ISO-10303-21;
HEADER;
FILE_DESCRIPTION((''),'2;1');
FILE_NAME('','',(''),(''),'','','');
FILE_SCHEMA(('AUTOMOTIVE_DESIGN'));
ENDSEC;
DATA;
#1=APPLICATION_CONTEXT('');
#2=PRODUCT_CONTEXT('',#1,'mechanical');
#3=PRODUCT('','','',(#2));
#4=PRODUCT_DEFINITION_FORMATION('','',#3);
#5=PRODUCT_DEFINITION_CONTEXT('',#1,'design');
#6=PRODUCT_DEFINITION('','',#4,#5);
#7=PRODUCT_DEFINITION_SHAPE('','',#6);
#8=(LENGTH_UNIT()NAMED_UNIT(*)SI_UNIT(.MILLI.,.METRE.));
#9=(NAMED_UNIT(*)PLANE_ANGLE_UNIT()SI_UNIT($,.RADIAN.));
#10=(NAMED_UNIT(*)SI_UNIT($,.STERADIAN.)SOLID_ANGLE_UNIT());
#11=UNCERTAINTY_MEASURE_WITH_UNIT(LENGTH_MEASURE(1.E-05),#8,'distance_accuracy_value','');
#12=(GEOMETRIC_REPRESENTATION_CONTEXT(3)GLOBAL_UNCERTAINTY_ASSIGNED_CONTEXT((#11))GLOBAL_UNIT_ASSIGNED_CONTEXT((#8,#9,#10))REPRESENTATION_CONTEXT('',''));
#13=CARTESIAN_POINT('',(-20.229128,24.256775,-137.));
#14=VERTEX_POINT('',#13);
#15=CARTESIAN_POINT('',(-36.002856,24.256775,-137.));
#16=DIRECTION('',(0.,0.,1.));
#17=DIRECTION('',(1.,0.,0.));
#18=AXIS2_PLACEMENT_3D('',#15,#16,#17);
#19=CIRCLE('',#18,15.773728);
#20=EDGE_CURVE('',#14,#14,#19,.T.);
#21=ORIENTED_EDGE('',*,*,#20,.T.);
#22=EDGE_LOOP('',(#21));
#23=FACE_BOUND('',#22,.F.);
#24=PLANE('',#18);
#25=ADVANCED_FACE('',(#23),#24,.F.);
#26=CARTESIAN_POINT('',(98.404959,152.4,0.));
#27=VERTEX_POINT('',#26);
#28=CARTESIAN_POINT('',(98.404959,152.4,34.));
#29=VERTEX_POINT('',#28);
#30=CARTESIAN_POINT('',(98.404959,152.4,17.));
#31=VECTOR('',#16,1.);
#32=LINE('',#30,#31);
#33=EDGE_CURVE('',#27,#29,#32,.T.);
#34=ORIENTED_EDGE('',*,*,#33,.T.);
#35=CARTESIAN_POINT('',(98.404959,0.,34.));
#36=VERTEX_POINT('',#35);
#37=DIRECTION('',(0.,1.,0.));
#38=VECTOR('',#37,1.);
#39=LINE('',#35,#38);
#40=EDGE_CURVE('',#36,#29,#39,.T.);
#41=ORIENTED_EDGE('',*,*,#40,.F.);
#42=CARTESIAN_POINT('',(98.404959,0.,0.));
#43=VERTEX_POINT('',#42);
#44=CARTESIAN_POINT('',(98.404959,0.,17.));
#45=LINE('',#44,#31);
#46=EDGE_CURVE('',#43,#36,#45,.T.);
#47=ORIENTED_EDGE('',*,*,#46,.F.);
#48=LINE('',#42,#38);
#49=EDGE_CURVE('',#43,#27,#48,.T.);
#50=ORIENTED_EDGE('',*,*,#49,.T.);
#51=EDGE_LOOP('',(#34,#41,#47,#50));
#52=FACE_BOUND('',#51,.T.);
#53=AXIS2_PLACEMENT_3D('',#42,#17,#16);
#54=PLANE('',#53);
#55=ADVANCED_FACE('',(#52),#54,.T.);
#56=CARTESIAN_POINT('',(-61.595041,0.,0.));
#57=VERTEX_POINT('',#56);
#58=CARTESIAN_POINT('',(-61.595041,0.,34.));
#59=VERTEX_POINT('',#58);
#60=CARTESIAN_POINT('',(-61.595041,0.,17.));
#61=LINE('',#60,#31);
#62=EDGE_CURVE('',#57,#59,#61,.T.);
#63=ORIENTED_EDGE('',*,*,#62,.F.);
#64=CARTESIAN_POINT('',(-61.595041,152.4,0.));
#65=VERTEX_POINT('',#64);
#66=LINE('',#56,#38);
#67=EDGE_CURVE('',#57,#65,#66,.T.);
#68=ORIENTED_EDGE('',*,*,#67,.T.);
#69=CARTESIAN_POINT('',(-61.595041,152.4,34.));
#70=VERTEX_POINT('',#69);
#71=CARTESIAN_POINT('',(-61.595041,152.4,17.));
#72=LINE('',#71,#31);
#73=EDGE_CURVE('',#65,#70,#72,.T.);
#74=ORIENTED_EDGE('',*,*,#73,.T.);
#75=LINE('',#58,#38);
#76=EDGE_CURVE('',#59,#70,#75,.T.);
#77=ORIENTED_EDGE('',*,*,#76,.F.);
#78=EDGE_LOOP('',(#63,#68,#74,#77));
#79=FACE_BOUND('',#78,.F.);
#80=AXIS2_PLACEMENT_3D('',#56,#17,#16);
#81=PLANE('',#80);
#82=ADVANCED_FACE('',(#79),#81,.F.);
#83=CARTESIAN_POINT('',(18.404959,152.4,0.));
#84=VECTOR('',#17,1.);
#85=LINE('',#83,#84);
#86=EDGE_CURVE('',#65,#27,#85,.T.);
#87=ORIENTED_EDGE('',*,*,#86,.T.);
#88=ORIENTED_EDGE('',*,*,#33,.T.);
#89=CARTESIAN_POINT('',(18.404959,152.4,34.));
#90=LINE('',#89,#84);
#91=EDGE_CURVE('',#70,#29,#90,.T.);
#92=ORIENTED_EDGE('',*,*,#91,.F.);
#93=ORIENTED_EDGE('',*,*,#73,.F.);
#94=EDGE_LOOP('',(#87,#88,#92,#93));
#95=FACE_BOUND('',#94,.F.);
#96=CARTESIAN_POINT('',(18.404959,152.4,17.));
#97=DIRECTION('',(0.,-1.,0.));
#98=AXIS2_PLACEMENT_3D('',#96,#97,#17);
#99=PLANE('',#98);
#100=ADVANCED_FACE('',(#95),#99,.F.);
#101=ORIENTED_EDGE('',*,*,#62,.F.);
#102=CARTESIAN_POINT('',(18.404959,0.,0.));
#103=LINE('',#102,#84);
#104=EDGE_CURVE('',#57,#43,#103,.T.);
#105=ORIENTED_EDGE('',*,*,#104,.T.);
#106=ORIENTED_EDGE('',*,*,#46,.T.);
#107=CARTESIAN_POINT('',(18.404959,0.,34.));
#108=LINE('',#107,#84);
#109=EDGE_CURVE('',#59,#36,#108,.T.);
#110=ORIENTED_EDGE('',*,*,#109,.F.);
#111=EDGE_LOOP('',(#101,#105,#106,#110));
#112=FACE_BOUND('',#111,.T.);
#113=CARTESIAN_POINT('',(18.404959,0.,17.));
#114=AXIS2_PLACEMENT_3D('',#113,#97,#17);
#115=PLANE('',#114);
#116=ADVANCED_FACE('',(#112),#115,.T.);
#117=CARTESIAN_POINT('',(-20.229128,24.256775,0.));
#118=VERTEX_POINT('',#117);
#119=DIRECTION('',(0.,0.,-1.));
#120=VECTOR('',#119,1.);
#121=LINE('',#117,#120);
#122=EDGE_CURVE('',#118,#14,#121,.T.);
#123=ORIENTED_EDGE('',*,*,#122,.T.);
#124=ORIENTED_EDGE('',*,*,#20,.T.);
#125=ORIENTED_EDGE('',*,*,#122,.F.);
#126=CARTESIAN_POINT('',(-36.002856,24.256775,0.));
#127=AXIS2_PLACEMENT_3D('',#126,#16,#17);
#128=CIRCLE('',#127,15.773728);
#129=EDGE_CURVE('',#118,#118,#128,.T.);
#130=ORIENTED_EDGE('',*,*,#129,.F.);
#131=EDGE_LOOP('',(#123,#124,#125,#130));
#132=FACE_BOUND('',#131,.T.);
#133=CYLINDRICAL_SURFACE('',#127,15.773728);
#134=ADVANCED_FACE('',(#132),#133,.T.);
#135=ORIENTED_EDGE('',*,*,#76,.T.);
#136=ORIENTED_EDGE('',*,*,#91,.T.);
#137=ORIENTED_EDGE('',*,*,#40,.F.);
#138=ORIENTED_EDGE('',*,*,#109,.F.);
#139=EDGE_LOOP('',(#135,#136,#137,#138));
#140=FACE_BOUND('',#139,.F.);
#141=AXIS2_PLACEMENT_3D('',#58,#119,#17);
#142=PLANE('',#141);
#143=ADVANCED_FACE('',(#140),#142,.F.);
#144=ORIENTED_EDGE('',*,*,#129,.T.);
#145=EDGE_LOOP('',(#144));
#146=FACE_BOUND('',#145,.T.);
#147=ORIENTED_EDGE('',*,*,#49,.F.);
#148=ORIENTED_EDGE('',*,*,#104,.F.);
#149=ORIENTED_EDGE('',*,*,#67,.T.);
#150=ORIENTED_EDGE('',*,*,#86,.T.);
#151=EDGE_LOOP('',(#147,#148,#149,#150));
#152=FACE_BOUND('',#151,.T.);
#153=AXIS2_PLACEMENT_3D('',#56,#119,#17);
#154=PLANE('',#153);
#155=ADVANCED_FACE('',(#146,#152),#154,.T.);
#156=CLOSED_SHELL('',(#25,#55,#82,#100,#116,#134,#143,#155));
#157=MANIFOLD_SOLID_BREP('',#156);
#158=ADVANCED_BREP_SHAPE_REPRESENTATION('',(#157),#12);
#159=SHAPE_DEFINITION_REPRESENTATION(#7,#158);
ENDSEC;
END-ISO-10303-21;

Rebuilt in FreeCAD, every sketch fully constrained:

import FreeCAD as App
import Part
import Sketcher

V = App.Vector
Q = App.Units.Quantity


def add_polygon(sketch, points):
    """Adds a closed chain of lines whose ends are joined by coincident constraints."""
    first, n = sketch.GeometryCount, len(points)
    for a, b in zip(points, points[1:] + points[:1]):
        sketch.addGeometry(Part.LineSegment(App.Vector(*a, 0), App.Vector(*b, 0)), False)
    for i in range(n):
        sketch.addConstraint(Sketcher.Constraint("Coincident", first + i, 2, first + (i + 1) % n, 1))

doc = App.newDocument("Part")
body = doc.addObject("PartDesign::Body", "Body")

sketch1 = body.newObject("Sketcher::SketchObject", "Sketch")
sketch1.AttachmentSupport = (doc.getObject("XZ_Plane"), [""])
sketch1.MapMode = "FlatFace"
add_polygon(sketch1, [(-62, 34), (-62, 0), (98, 0), (98, 34)])
sketch1.addConstraint(Sketcher.Constraint("Vertical", 0))
sketch1.addConstraint(Sketcher.Constraint("Horizontal", 1))
sketch1.addConstraint(Sketcher.Constraint("Vertical", 2))
sketch1.addConstraint(Sketcher.Constraint("Horizontal", 3))
sketch1.addConstraint(Sketcher.Constraint("PointOnObject", 0, 2, -1))
sketch1.addConstraint(Sketcher.Constraint("DistanceX", 1, 1, 1, 2, Q("160 mm")))
sketch1.addConstraint(Sketcher.Constraint("DistanceY", 0, 2, 0, 1, Q("34 mm")))
sketch1.addConstraint(Sketcher.Constraint("DistanceX", 0, 2, -1, 1, Q("61.595041 mm")))
pad1 = body.newObject("PartDesign::Pad", "Pad")
pad1.Profile = sketch1
pad1.Length = 152.4
pad1.Reversed = True

sketch2 = body.newObject("Sketcher::SketchObject", "Sketch001")
sketch2.AttachmentSupport = (doc.getObject("XY_Plane"), [""])
sketch2.MapMode = "FlatFace"
sketch2.addGeometry(Part.Circle(V(-36, 24, 0), V(0, 0, 1), 16), False)
sketch2.addConstraint(Sketcher.Constraint("Diameter", 0, Q("31.547456 mm")))
sketch2.addConstraint(Sketcher.Constraint("DistanceX", 0, 3, -1, 1, Q("36.002856 mm")))
sketch2.addConstraint(Sketcher.Constraint("DistanceY", -1, 1, 0, 3, Q("24.256775 mm")))
pad2 = body.newObject("PartDesign::Pad", "Pad001")
pad2.Profile = sketch2
pad2.Length = 137
pad2.Reversed = True

doc.recompute()
